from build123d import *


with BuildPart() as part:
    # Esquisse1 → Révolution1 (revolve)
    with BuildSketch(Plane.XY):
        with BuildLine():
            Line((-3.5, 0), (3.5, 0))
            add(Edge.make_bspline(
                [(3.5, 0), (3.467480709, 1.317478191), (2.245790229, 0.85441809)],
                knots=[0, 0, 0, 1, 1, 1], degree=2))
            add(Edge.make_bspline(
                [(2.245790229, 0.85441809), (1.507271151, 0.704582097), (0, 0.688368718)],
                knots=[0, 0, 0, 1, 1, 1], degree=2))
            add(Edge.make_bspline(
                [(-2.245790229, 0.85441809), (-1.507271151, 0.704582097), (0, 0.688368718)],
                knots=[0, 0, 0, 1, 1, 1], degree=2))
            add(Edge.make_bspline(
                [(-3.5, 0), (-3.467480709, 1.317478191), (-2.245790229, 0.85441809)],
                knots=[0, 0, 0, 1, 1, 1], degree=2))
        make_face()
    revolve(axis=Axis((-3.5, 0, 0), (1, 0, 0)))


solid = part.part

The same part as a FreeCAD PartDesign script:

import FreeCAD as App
import Part
import Sketcher

V = App.Vector

doc = App.newDocument("Part")
body = doc.addObject("PartDesign::Body", "Body")

# Sketch on XY plane
sketch1 = body.newObject("Sketcher::SketchObject", "Sketch")
sketch1.AttachmentSupport = (doc.getObject("XY_Plane"), [""])
sketch1.MapMode = "FlatFace"
sketch1.addGeometry([
    Part.LineSegment(V(-3.5, 0, 0), V(3.5, 0, 0)),  # 0
    Part.BSplineCurve([V(3.5, 0, 0), V(3.467481, 1.317478, 0), V(2.24579, 0.854418, 0)], [3, 3], [0, 1], False, 2, [1, 1, 1], False),  # 1
    Part.BSplineCurve([V(2.24579, 0.854418, 0), V(1.507271, 0.704582, 0), V(0, 0.688369, 0)], [3, 3], [0, 1], False, 2, [1, 1, 1], False),  # 2
    Part.BSplineCurve([V(-2.24579, 0.854418, 0), V(-1.507271, 0.704582, 0), V(0, 0.688369, 0)], [3, 3], [0, 1], False, 2, [1, 1, 1], False),  # 3
    Part.BSplineCurve([V(-3.5, 0, 0), V(-3.467481, 1.317478, 0), V(-2.24579, 0.854418, 0)], [3, 3], [0, 1], False, 2, [1, 1, 1], False),  # 4
], False)
sketch1.addConstraint([
    Sketcher.Constraint("Block", 1),
    Sketcher.Constraint("Block", 2),
    Sketcher.Constraint("Block", 3),
    Sketcher.Constraint("Block", 4),
    Sketcher.Constraint("Coincident", 0, 2, 1, 1),
    Sketcher.Constraint("Coincident", 4, 1, 0, 1),
])
revolution = body.newObject("PartDesign::Revolution", "Revolution")
revolution.Profile = sketch1
revolution.ReferenceAxis = (sketch1, ["H_Axis"])
revolution.Angle = 360

doc.recompute()
